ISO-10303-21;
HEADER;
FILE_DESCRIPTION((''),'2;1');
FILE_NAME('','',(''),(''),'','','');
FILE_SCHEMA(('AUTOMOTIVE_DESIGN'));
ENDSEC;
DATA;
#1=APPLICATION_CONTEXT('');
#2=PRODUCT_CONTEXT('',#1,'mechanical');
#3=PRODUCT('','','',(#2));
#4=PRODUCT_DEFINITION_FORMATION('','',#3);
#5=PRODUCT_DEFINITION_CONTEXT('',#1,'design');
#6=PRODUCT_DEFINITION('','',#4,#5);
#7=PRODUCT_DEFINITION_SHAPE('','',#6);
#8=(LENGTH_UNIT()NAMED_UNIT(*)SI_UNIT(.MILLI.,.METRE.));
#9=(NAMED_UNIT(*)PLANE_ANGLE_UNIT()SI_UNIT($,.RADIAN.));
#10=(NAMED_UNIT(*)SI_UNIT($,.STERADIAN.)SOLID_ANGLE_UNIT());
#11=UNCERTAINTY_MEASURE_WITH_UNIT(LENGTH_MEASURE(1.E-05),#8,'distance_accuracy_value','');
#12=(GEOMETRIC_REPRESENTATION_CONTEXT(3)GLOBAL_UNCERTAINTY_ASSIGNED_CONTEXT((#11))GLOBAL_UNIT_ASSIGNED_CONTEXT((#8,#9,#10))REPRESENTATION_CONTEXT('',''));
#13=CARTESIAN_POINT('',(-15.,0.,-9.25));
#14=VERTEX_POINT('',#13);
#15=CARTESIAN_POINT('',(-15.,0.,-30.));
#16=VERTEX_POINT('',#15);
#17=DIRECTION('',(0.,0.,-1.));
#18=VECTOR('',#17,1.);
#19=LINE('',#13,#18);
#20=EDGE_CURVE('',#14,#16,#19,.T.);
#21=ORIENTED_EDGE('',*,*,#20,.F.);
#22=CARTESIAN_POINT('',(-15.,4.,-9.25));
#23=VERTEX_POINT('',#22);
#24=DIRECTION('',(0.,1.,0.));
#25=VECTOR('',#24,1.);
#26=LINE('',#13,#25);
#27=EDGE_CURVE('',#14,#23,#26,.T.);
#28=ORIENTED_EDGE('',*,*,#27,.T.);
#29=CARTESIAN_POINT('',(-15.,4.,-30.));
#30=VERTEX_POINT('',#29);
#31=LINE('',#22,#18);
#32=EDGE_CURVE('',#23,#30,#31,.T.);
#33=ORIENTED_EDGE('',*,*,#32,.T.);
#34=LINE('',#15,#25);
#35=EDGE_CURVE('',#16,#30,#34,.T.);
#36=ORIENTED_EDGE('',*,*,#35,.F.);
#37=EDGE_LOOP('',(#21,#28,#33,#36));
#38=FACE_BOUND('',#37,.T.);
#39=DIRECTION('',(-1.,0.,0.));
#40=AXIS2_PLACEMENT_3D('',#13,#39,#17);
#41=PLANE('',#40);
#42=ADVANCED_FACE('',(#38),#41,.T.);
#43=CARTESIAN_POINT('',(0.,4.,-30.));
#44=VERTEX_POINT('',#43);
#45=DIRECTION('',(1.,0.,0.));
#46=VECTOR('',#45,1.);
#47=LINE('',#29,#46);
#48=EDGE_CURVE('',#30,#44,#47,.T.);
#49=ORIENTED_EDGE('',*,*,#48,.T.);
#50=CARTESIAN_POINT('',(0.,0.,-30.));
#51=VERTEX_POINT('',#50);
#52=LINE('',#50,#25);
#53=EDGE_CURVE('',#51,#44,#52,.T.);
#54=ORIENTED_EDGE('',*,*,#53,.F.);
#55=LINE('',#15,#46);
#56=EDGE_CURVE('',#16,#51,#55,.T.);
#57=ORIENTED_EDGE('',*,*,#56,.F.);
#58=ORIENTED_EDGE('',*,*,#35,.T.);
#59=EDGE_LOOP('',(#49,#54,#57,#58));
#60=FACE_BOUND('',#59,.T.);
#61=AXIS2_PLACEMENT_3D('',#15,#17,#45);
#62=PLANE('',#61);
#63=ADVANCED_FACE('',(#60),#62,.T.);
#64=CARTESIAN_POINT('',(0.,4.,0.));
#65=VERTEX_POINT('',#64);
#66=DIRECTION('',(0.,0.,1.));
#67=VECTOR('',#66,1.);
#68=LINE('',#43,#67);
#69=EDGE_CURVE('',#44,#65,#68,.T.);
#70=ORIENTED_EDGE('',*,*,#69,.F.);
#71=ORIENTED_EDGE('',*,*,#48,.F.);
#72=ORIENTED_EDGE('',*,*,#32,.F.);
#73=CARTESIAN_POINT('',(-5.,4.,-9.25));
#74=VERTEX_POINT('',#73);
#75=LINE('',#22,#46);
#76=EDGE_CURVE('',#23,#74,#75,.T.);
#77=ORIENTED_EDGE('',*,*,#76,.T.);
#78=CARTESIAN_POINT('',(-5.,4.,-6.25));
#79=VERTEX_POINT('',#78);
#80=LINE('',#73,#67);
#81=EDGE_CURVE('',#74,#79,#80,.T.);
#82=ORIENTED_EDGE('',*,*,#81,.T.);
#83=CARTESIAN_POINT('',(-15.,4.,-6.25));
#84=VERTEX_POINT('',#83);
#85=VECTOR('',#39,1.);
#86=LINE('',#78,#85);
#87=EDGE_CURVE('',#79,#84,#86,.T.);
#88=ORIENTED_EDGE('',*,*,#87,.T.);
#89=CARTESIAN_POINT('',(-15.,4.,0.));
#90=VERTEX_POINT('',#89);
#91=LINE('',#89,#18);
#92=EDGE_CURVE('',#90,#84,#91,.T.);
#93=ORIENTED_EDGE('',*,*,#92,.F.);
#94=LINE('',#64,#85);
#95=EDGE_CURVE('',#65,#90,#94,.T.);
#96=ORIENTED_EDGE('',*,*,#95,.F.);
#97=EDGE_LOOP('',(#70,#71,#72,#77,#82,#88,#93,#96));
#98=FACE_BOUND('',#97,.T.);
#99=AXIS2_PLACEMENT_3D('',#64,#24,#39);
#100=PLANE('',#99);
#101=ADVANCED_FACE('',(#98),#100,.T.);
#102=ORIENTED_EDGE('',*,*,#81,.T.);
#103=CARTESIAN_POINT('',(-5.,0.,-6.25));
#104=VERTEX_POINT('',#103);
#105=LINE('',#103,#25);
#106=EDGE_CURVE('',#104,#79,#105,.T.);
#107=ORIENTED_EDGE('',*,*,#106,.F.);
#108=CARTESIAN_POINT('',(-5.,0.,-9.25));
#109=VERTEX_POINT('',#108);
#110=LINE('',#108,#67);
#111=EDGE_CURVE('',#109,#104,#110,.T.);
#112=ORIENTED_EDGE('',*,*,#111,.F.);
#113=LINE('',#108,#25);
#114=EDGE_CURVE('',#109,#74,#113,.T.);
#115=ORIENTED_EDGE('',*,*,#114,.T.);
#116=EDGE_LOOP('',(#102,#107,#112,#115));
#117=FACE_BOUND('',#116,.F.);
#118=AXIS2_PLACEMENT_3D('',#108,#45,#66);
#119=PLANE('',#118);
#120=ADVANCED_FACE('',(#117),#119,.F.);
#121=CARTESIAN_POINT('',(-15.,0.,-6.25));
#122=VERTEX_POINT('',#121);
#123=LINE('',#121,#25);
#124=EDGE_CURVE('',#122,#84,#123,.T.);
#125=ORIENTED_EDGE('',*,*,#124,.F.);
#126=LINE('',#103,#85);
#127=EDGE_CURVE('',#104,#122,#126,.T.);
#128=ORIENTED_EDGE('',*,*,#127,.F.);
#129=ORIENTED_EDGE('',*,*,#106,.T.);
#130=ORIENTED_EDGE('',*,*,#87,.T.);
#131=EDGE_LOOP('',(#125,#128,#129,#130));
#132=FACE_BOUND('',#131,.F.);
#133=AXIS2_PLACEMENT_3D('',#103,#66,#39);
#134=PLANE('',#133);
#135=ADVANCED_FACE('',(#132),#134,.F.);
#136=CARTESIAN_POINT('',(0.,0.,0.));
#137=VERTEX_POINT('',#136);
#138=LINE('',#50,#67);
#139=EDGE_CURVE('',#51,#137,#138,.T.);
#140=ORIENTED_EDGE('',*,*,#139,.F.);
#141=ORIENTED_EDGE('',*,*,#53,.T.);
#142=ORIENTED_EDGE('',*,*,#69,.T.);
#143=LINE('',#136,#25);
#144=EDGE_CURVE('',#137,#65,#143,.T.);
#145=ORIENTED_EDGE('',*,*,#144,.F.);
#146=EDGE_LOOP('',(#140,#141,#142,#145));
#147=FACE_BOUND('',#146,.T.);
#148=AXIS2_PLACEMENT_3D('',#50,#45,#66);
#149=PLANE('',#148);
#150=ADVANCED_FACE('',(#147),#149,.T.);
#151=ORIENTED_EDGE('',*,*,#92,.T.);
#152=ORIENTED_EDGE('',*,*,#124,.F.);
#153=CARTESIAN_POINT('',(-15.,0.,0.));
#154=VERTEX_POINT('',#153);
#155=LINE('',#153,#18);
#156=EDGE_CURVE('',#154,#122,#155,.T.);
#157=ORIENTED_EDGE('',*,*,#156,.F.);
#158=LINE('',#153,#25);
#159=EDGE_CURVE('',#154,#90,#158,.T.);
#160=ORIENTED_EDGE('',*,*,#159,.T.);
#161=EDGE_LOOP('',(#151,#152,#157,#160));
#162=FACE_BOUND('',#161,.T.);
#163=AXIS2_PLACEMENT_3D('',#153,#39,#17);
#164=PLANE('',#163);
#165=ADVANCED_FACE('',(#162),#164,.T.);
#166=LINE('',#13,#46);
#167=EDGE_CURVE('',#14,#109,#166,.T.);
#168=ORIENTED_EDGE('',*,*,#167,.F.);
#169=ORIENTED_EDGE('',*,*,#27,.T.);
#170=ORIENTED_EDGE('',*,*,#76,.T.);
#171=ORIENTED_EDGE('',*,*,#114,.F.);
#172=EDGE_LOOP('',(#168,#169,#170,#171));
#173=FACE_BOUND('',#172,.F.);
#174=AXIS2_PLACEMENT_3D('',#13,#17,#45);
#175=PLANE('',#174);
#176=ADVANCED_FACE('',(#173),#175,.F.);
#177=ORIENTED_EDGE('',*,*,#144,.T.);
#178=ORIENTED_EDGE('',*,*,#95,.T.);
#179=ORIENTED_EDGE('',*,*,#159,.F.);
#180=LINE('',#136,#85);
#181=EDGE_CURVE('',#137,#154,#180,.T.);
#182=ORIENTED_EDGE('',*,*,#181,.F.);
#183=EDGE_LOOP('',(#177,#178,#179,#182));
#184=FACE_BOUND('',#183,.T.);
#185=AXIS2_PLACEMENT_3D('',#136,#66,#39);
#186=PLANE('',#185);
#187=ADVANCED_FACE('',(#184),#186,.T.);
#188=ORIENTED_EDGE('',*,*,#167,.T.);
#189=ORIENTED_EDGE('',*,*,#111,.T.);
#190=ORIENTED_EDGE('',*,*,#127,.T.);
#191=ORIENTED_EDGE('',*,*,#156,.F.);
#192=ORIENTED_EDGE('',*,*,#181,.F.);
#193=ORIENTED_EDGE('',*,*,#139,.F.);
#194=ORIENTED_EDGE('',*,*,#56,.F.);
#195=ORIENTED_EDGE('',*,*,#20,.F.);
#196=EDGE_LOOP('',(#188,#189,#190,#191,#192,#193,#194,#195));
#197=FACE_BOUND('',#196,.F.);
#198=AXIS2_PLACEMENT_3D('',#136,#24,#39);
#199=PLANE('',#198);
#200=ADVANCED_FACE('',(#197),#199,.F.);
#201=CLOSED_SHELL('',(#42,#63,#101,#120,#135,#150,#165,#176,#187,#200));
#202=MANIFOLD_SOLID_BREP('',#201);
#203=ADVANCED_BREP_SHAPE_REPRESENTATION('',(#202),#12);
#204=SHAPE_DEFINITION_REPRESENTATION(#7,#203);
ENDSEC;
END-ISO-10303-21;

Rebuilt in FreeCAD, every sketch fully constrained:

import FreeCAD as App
import Part
import Sketcher
Q = App.Units.Quantity

doc = App.newDocument("Part")
body = doc.addObject("PartDesign::Body", "Body")

sketch1 = body.newObject("Sketcher::SketchObject", "Sketch")
sketch1.AttachmentSupport = (doc.getObject("XZ_Plane"), [""])
sketch1.MapMode = "FlatFace"
sketch1.addGeometry([
    Part.LineSegment(App.Vector(-15, 0, 0), App.Vector(0, 0, 0)),
    Part.LineSegment(App.Vector(0, 0, 0), App.Vector(0, -30, 0)),
    Part.LineSegment(App.Vector(0, -30, 0), App.Vector(-15, -30, 0)),
    Part.LineSegment(App.Vector(-15, -30, 0), App.Vector(-15, -9.2, 0)),
    Part.LineSegment(App.Vector(-15, -9.2, 0), App.Vector(-5, -9.2, 0)),
    Part.LineSegment(App.Vector(-5, -9.2, 0), App.Vector(-5, -6.2, 0)),
    Part.LineSegment(App.Vector(-5, -6.2, 0), App.Vector(-15, -6.2, 0)),
    Part.LineSegment(App.Vector(-15, -6.2, 0), App.Vector(-15, 0, 0)),
], False)
sketch1.addConstraint([
    Sketcher.Constraint("Coincident", 0, 2, 1, 1),
    Sketcher.Constraint("Coincident", 1, 2, 2, 1),
    Sketcher.Constraint("Coincident", 2, 2, 3, 1),
    Sketcher.Constraint("Coincident", 3, 2, 4, 1),
    Sketcher.Constraint("Coincident", 4, 2, 5, 1),
    Sketcher.Constraint("Coincident", 5, 2, 6, 1),
    Sketcher.Constraint("Coincident", 6, 2, 7, 1),
    Sketcher.Constraint("Coincident", 7, 2, 0, 1),
    Sketcher.Constraint("Horizontal", 0),
    Sketcher.Constraint("Vertical", 1),
    Sketcher.Constraint("Horizontal", 2),
    Sketcher.Constraint("Vertical", 3),
    Sketcher.Constraint("Horizontal", 4),
    Sketcher.Constraint("Vertical", 5),
    Sketcher.Constraint("Horizontal", 6),
    Sketcher.Constraint("Vertical", 7),
    Sketcher.Constraint("Coincident", 0, 2, -1, 1),
    Sketcher.Constraint("Vertical", 3, 2, 6, 2),
    Sketcher.Constraint("DistanceX", 0, 1, 0, 2, Q("15 mm")),
    Sketcher.Constraint("DistanceX", 4, 1, 4, 2, Q("10 mm")),
    Sketcher.Constraint("DistanceY", 1, 2, 1, 1, Q("30 mm")),
    Sketcher.Constraint("DistanceY", 5, 1, 5, 2, Q("3 mm")),
    Sketcher.Constraint("DistanceY", 3, 1, 3, 2, Q("20.75 mm")),
])
pad1 = body.newObject("PartDesign::Pad", "Pad")
pad1.Profile = sketch1
pad1.Length = 4
pad1.Reversed = True

doc.recompute()
